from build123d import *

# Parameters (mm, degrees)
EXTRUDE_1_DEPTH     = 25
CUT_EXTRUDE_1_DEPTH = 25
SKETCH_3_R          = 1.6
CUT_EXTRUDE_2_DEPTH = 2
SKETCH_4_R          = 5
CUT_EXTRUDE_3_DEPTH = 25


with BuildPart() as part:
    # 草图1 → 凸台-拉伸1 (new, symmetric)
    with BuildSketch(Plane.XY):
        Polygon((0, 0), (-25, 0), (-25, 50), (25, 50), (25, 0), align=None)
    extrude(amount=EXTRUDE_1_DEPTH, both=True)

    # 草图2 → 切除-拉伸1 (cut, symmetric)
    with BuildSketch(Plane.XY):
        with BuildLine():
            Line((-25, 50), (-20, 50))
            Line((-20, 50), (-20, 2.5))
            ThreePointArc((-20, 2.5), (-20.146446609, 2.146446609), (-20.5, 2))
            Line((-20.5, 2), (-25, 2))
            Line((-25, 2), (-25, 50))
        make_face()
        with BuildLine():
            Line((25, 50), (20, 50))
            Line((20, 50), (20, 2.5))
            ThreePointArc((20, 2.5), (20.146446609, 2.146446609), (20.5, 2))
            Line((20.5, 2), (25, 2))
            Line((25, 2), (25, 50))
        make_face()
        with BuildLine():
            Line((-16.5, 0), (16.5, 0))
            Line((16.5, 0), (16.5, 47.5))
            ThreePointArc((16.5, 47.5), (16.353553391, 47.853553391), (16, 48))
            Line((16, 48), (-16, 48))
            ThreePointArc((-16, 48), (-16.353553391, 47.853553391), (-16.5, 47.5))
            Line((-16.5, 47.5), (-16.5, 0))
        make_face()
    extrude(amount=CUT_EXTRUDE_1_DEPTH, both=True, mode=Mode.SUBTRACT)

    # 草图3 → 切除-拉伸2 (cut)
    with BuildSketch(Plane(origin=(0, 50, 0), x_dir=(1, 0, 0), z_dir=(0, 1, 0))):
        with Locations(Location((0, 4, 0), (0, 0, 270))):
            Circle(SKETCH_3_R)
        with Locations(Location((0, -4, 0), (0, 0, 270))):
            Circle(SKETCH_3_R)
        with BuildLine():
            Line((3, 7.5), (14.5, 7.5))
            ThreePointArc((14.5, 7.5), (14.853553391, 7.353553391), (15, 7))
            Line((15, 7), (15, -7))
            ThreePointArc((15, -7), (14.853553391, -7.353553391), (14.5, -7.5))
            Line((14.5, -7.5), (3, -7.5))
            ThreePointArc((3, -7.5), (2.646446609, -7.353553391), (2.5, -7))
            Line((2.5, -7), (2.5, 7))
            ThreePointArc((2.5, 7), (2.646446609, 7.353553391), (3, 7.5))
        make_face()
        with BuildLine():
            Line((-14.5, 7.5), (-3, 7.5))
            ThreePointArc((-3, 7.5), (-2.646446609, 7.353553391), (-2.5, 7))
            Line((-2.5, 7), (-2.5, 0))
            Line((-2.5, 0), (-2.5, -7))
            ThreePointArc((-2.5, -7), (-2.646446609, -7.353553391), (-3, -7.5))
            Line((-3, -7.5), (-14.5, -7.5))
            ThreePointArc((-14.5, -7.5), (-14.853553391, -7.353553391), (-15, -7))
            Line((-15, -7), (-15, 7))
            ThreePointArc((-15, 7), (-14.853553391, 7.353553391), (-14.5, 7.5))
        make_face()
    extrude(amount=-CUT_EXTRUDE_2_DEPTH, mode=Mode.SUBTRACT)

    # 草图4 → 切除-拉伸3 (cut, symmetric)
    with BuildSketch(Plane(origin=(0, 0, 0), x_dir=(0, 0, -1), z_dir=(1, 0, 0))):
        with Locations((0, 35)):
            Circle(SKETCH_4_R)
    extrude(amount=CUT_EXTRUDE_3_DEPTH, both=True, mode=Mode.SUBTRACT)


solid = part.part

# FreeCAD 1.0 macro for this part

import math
import FreeCAD as App
import Part
import Sketcher

doc = App.newDocument("Part")
body = doc.addObject("PartDesign::Body", "Body")

# Sketch on XY plane
sketch1 = body.newObject("Sketcher::SketchObject", "Sketch")
sketch1.AttachmentSupport = (doc.getObject("XY_Plane"), [""])
sketch1.MapMode = "FlatFace"
sketch1.addGeometry([
    Part.LineSegment(App.Vector(-25, 0, 0), App.Vector(25, 0, 0)),
    Part.LineSegment(App.Vector(25, 0, 0), App.Vector(25, 50, 0)),
    Part.LineSegment(App.Vector(25, 50, 0), App.Vector(-25, 50, 0)),
    Part.LineSegment(App.Vector(-25, 50, 0), App.Vector(-25, 0, 0)),
], False)
sketch1.addConstraint([
    Sketcher.Constraint("Coincident", 0, 2, 1, 1),
    Sketcher.Constraint("Coincident", 1, 2, 2, 1),
    Sketcher.Constraint("Coincident", 2, 2, 3, 1),
    Sketcher.Constraint("Coincident", 3, 2, 0, 1),
    Sketcher.Constraint("Horizontal", 0),
    Sketcher.Constraint("Vertical", 1),
    Sketcher.Constraint("Horizontal", 2),
    Sketcher.Constraint("Vertical", 3),
    Sketcher.Constraint("Symmetric", 0, 2, 3, 2, -1, 1),
    Sketcher.Constraint("Equal", 2, 1),
    Sketcher.Constraint("DistanceX", 0, 1, 0, 2, 50.0),
])
pad1 = body.newObject("PartDesign::Pad", "Pad")
pad1.Profile = sketch1
pad1.Length = 50
pad1.Midplane = True

# Sketch on XY plane
sketch2 = body.newObject("Sketcher::SketchObject", "Sketch001")
sketch2.AttachmentSupport = (doc.getObject("XY_Plane"), [""])
sketch2.MapMode = "FlatFace"
sketch2.addGeometry([
    Part.LineSegment(App.Vector(-20, 50, 0), App.Vector(-25, 50, 0)),  # 0
    Part.LineSegment(App.Vector(-25, 50, 0), App.Vector(-25, 2, 0)),  # 1
    Part.LineSegment(App.Vector(-25, 2, 0), App.Vector(-20.5, 2, 0)),  # 2
    Part.ArcOfCircle(Part.Circle(App.Vector(-20.5, 2.5, 0), App.Vector(0, 0, 1), 0.5), math.radians(-90), math.radians(0)),  # 3
    Part.LineSegment(App.Vector(-20, 2.5, 0), App.Vector(-20, 50, 0)),  # 4
    Part.LineSegment(App.Vector(25, 50, 0), App.Vector(20, 50, 0)),  # 5
    Part.LineSegment(App.Vector(20, 50, 0), App.Vector(20, 2.5, 0)),  # 6
    Part.ArcOfCircle(Part.Circle(App.Vector(20.5, 2.5, 0), App.Vector(0, 0, 1), 0.5), math.radians(180), math.radians(270)),  # 7
    Part.LineSegment(App.Vector(20.5, 2, 0), App.Vector(25, 2, 0)),  # 8
    Part.LineSegment(App.Vector(25, 2, 0), App.Vector(25, 50, 0)),  # 9
    Part.LineSegment(App.Vector(-16.5, 0, 0), App.Vector(16.5, 0, 0)),  # 10
    Part.LineSegment(App.Vector(16.5, 0, 0), App.Vector(16.5, 47.5, 0)),  # 11
    Part.ArcOfCircle(Part.Circle(App.Vector(16, 47.5, 0), App.Vector(0, 0, 1), 0.5), math.radians(0), math.radians(90)),  # 12
    Part.LineSegment(App.Vector(16, 48, 0), App.Vector(-16, 48, 0)),  # 13
    Part.ArcOfCircle(Part.Circle(App.Vector(-16, 47.5, 0), App.Vector(0, 0, 1), 0.5), math.radians(90), math.radians(180)),  # 14
    Part.LineSegment(App.Vector(-16.5, 47.5, 0), App.Vector(-16.5, 0, 0)),  # 15
], False)
sketch2.addConstraint([
    Sketcher.Constraint("Coincident", 0, 2, 1, 1),
    Sketcher.Constraint("Coincident", 1, 2, 2, 1),
    Sketcher.Constraint("Tangent", 2, 2, 3, 1),
    Sketcher.Constraint("Tangent", 3, 2, 4, 1),
    Sketcher.Constraint("Coincident", 4, 2, 0, 1),
    Sketcher.Constraint("Coincident", 5, 2, 6, 1),
    Sketcher.Constraint("Tangent", 6, 2, 7, 1),
    Sketcher.Constraint("Tangent", 7, 2, 8, 1),
    Sketcher.Constraint("Coincident", 8, 2, 9, 1),
    Sketcher.Constraint("Coincident", 9, 2, 5, 1),
    Sketcher.Constraint("Coincident", 10, 2, 11, 1),
    Sketcher.Constraint("Tangent", 11, 2, 12, 1),
    Sketcher.Constraint("Tangent", 12, 2, 13, 1),
    Sketcher.Constraint("Tangent", 13, 2, 14, 1),
    Sketcher.Constraint("Tangent", 14, 2, 15, 1),
    Sketcher.Constraint("Coincident", 15, 2, 10, 1),
    Sketcher.Constraint("Horizontal", 0),
    Sketcher.Constraint("Vertical", 1),
    Sketcher.Constraint("Horizontal", 2),
    Sketcher.Constraint("Vertical", 4),
    Sketcher.Constraint("Horizontal", 5),
    Sketcher.Constraint("Vertical", 6),
    Sketcher.Constraint("Horizontal", 8),
    Sketcher.Constraint("Vertical", 9),
    Sketcher.Constraint("Horizontal", 10),
    Sketcher.Constraint("Vertical", 11),
    Sketcher.Constraint("Horizontal", 13),
    Sketcher.Constraint("Vertical", 15),
    Sketcher.Constraint("Equal", 3, 7),
    Sketcher.Constraint("Equal", 7, 12),
    Sketcher.Constraint("Equal", 12, 14),
    Sketcher.Constraint("Symmetric", 10, 2, 15, 2, -1, 1),
    Sketcher.Constraint("Symmetric", 3, 3, 7, 3, -2),
    Sketcher.Constraint("Symmetric", 0, 2, 9, 2, -2),
    Sketcher.Constraint("Equal", 6, 11),
    Sketcher.Constraint("Radius", 3, 0.5),
    Sketcher.Constraint("DistanceX", 0, 2, 0, 1, 5.0),
    Sketcher.Constraint("DistanceX", 10, 1, 10, 2, 33.0),
    Sketcher.Constraint("DistanceY", 1, 2, 1, 1, 48.0),
    Sketcher.Constraint("DistanceX", 0, 2, -1, 1, 25.0),
    Sketcher.Constraint("DistanceY", -1, 1, 0, 2, 50.0),
])
pocket1 = body.newObject("PartDesign::Pocket", "Pocket")
pocket1.Profile = sketch2
pocket1.Length = 50
pocket1.Midplane = True

# Sketch on XZ plane
sketch3 = body.newObject("Sketcher::SketchObject", "Sketch002")
sketch3.AttachmentSupport = (doc.getObject("XZ_Plane"), [""])
sketch3.MapMode = "FlatFace"
sketch3.AttachmentOffset = App.Placement(App.Vector(0, 0, -50), App.Rotation())
sketch3.addGeometry([
    Part.Circle(App.Vector(0, -4, 0), App.Vector(0, 0, 1), 1.6),  # 0
    Part.Circle(App.Vector(0, 4, 0), App.Vector(0, 0, 1), 1.6),  # 1
    Part.LineSegment(App.Vector(14.5, -7.5, 0), App.Vector(3, -7.5, 0)),  # 2
    Part.ArcOfCircle(Part.Circle(App.Vector(3, -7, 0), App.Vector(0, 0, 1), 0.5), math.radians(180), math.radians(270)),  # 3
    Part.LineSegment(App.Vector(2.5, -7, 0), App.Vector(2.5, 7, 0)),  # 4
    Part.ArcOfCircle(Part.Circle(App.Vector(3, 7, 0), App.Vector(0, 0, 1), 0.5), math.radians(90), math.radians(180)),  # 5
    Part.LineSegment(App.Vector(3, 7.5, 0), App.Vector(14.5, 7.5, 0)),  # 6
    Part.ArcOfCircle(Part.Circle(App.Vector(14.5, 7, 0), App.Vector(0, 0, 1), 0.5), math.radians(0), math.radians(90)),  # 7
    Part.LineSegment(App.Vector(15, 7, 0), App.Vector(15, -7, 0)),  # 8
    Part.ArcOfCircle(Part.Circle(App.Vector(14.5, -7, 0), App.Vector(0, 0, 1), 0.5), math.radians(-90), math.radians(0)),  # 9
    Part.LineSegment(App.Vector(-3, -7.5, 0), App.Vector(-14.5, -7.5, 0)),  # 10
    Part.ArcOfCircle(Part.Circle(App.Vector(-14.5, -7, 0), App.Vector(0, 0, 1), 0.5), math.radians(180), math.radians(270)),  # 11
    Part.LineSegment(App.Vector(-15, -7, 0), App.Vector(-15, 7, 0)),  # 12
    Part.ArcOfCircle(Part.Circle(App.Vector(-14.5, 7, 0), App.Vector(0, 0, 1), 0.5), math.radians(90), math.radians(180)),  # 13
    Part.LineSegment(App.Vector(-14.5, 7.5, 0), App.Vector(-3, 7.5, 0)),  # 14
    Part.ArcOfCircle(Part.Circle(App.Vector(-3, 7, 0), App.Vector(0, 0, 1), 0.5), math.radians(0), math.radians(90)),  # 15
    Part.LineSegment(App.Vector(-2.5, 7, 0), App.Vector(-2.5, -7, 0)),  # 16
    Part.ArcOfCircle(Part.Circle(App.Vector(-3, -7, 0), App.Vector(0, 0, 1), 0.5), math.radians(-90), math.radians(0)),  # 17
], False)
sketch3.addConstraint([
    Sketcher.Constraint("Tangent", 2, 2, 3, 2),
    Sketcher.Constraint("Tangent", 3, 1, 4, 1),
    Sketcher.Constraint("Tangent", 4, 2, 5, 2),
    Sketcher.Constraint("Tangent", 5, 1, 6, 1),
    Sketcher.Constraint("Tangent", 6, 2, 7, 2),
    Sketcher.Constraint("Tangent", 7, 1, 8, 1),
    Sketcher.Constraint("Tangent", 8, 2, 9, 2),
    Sketcher.Constraint("Tangent", 9, 1, 2, 1),
    Sketcher.Constraint("Tangent", 10, 2, 11, 2),
    Sketcher.Constraint("Tangent", 11, 1, 12, 1),
    Sketcher.Constraint("Tangent", 12, 2, 13, 2),
    Sketcher.Constraint("Tangent", 13, 1, 14, 1),
    Sketcher.Constraint("Tangent", 14, 2, 15, 2),
    Sketcher.Constraint("Tangent", 15, 1, 16, 1),
    Sketcher.Constraint("Tangent", 16, 2, 17, 2),
    Sketcher.Constraint("Tangent", 17, 1, 10, 1),
    Sketcher.Constraint("Horizontal", 2),
    Sketcher.Constraint("Vertical", 4),
    Sketcher.Constraint("Horizontal", 6),
    Sketcher.Constraint("Vertical", 8),
    Sketcher.Constraint("Horizontal", 10),
    Sketcher.Constraint("Vertical", 12),
    Sketcher.Constraint("Horizontal", 14),
    Sketcher.Constraint("Vertical", 16),
    Sketcher.Constraint("Equal", 0, 1),
    Sketcher.Constraint("Equal", 3, 5),
    Sketcher.Constraint("Equal", 5, 7),
    Sketcher.Constraint("Equal", 7, 9),
    Sketcher.Constraint("Equal", 9, 11),
    Sketcher.Constraint("Equal", 11, 13),
    Sketcher.Constraint("Equal", 13, 15),
    Sketcher.Constraint("Equal", 15, 17),
    Sketcher.Constraint("Symmetric", 0, 3, 1, 3, -1, 1),
    Sketcher.Constraint("Symmetric", 7, 3, 11, 3, -1, 1),
    Sketcher.Constraint("Symmetric", 3, 3, 15, 3, -1, 1),
    Sketcher.Constraint("PointOnObject", 0, 3, -2),
    Sketcher.Constraint("Horizontal", 9, 3, 11, 3),
    Sketcher.Constraint("Diameter", 0, 3.2),
    Sketcher.Constraint("Radius", 3, 0.5),
    Sketcher.Constraint("DistanceY", 4, 1, 4, 2, 14.0),
    Sketcher.Constraint("DistanceX", 2, 2, 2, 1, 11.5),
    Sketcher.Constraint("DistanceY", 0, 3, -1, 1, 4.0),
    Sketcher.Constraint("DistanceX", -1, 1, 3, 3, 3.0),
])
pocket2 = body.newObject("PartDesign::Pocket", "Pocket001")
pocket2.Profile = sketch3
pocket2.Length = 2
pocket2.Reversed = True

# Sketch on YZ plane
sketch4 = body.newObject("Sketcher::SketchObject", "Sketch003")
sketch4.AttachmentSupport = (doc.getObject("YZ_Plane"), [""])
sketch4.MapMode = "FlatFace"
sketch4.addGeometry(Part.Circle(App.Vector(35, 0, 0), App.Vector(0, 0, 1), 5), False)
sketch4.addConstraint([
    Sketcher.Constraint("PointOnObject", 0, 3, -1),
    Sketcher.Constraint("Diameter", 0, 10.0),
    Sketcher.Constraint("DistanceX", -1, 1, 0, 3, 35.0),
])
pocket3 = body.newObject("PartDesign::Pocket", "Pocket002")
pocket3.Profile = sketch4
pocket3.Length = 50
pocket3.Midplane = True

doc.recompute()
